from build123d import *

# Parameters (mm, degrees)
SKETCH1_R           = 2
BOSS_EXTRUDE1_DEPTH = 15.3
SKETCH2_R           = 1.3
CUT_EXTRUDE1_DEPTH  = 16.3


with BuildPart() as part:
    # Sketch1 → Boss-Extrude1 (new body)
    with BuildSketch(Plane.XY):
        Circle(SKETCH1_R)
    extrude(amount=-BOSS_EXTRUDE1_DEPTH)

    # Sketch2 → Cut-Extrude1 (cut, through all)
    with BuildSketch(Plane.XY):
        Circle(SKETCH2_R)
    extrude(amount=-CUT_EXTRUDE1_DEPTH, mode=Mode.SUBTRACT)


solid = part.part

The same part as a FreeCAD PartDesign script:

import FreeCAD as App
import Part
import Sketcher

doc = App.newDocument("Part")
params = doc.addObject("Spreadsheet::Sheet", "Params")
for row, (alias, value) in enumerate([
    ("sketch1_diameter", "4 mm"),
    ("pad1_length", "15.3 mm"),
    ("sketch2_diameter", "2.6 mm"),
], start=1):
    params.set(f"A{row}", alias)
    params.set(f"B{row}", "=" + value)
    params.setAlias(f"B{row}", alias)

body = doc.addObject("PartDesign::Body", "Body")

# Sketch on XY plane
sketch1 = body.newObject("Sketcher::SketchObject", "Sketch")
sketch1.AttachmentSupport = (doc.getObject("XY_Plane"), [""])
sketch1.MapMode = "FlatFace"
sketch1.addGeometry(Part.Circle(App.Vector(0, 0, 0), App.Vector(0, 0, 1), 2), False)
sketch1.addConstraint([
    Sketcher.Constraint("Coincident", 0, 3, -1, 1),
    Sketcher.Constraint("Diameter", 0, 4.0),
])
sketch1.setExpression("Constraints[1]", "Params.sketch1_diameter")
pad1 = body.newObject("PartDesign::Pad", "Pad")
pad1.Profile = sketch1
pad1.setExpression("Length", "Params.pad1_length")
pad1.Reversed = True

# Sketch on XY plane
sketch2 = body.newObject("Sketcher::SketchObject", "Sketch001")
sketch2.AttachmentSupport = (doc.getObject("XY_Plane"), [""])
sketch2.MapMode = "FlatFace"
sketch2.addGeometry(Part.Circle(App.Vector(0, 0, 0), App.Vector(0, 0, 1), 1.3), False)
sketch2.addConstraint([
    Sketcher.Constraint("Coincident", 0, 3, -1, 1),
    Sketcher.Constraint("Diameter", 0, 2.6),
])
sketch2.setExpression("Constraints[1]", "Params.sketch2_diameter")
pocket1 = body.newObject("PartDesign::Pocket", "Pocket")
pocket1.Profile = sketch2
pocket1.Type = "ThroughAll"

doc.recompute()
